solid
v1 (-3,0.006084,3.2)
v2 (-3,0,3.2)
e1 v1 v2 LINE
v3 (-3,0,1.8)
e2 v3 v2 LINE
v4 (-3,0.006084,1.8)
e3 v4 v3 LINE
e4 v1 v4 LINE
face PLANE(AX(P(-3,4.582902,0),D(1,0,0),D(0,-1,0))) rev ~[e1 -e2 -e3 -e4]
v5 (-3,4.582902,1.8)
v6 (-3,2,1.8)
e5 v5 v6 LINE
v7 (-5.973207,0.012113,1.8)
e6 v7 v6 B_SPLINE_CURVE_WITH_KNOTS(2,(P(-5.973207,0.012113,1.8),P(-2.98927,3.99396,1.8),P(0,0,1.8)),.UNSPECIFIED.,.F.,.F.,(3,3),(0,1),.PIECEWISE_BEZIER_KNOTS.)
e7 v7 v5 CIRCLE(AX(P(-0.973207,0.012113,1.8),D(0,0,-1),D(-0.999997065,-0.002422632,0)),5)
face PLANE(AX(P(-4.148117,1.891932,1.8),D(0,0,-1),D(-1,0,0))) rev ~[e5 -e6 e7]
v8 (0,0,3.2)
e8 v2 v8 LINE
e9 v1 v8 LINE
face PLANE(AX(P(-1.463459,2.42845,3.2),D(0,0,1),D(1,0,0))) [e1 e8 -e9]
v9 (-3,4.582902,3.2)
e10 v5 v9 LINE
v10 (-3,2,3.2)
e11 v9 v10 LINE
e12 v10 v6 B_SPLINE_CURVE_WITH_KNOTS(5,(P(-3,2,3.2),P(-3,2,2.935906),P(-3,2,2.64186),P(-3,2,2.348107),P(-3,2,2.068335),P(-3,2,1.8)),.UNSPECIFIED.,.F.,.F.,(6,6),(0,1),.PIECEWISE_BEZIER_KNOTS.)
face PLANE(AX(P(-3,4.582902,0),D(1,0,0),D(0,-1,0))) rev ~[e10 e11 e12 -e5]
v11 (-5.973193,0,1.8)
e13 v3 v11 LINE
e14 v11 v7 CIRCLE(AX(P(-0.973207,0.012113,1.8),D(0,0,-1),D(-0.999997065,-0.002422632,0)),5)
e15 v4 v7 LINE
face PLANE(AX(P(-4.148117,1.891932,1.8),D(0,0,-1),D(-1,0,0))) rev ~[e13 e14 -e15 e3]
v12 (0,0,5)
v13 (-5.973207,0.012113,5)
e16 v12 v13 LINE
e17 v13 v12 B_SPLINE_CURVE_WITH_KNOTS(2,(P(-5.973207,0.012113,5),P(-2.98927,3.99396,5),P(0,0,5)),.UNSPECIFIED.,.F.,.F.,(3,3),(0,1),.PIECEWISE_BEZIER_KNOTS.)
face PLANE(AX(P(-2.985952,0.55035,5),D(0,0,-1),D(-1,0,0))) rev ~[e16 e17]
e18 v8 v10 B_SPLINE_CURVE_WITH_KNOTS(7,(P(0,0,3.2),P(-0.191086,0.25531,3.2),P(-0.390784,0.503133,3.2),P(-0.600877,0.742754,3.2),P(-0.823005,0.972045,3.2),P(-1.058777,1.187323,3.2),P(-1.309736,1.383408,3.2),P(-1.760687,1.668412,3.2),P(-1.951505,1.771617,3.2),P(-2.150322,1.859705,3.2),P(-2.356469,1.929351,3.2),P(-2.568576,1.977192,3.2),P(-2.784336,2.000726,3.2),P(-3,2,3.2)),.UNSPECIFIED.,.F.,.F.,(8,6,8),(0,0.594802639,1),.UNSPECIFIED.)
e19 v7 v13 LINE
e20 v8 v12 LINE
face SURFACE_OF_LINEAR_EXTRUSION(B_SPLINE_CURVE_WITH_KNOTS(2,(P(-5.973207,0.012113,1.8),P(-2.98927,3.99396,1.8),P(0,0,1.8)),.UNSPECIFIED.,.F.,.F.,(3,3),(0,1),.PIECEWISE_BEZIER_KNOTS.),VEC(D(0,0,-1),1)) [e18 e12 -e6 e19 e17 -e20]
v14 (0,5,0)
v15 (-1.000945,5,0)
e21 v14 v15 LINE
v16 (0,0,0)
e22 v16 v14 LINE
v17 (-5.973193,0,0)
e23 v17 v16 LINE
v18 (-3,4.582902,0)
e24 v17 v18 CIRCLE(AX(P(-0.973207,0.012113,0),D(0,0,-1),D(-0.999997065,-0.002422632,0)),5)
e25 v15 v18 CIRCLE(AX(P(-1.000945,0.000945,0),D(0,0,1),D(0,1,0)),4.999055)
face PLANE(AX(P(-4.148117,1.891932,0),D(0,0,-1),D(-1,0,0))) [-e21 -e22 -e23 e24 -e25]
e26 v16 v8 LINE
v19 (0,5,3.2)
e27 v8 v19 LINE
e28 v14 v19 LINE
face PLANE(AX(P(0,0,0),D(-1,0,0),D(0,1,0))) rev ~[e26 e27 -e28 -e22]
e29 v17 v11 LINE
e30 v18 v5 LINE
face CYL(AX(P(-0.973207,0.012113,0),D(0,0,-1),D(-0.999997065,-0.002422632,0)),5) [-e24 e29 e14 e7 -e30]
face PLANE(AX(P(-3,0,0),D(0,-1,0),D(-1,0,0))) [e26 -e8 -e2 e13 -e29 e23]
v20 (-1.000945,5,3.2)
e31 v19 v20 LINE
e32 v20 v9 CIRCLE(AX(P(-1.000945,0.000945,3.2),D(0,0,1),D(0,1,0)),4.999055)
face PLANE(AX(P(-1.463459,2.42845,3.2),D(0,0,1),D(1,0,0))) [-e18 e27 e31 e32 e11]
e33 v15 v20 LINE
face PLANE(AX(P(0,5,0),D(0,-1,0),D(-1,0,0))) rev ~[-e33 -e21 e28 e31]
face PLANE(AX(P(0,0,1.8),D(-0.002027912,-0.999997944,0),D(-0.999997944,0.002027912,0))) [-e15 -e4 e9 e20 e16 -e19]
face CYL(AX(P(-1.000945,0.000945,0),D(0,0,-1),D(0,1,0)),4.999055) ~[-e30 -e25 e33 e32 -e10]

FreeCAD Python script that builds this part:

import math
import FreeCAD as App
import Part
import Sketcher
Q = App.Units.Quantity

doc = App.newDocument("Part")
body = doc.addObject("PartDesign::Body", "Body")

# Sketch on XY plane
sketch1 = body.newObject("Sketcher::SketchObject", "Sketch")
sketch1.AttachmentSupport = (doc.getObject("XY_Plane"), [""])
sketch1.MapMode = "FlatFace"
sketch1.addGeometry([
    Part.LineSegment(App.Vector(-3, 4.6, 0), App.Vector(-3, 0, 0)),  # 0
    Part.LineSegment(App.Vector(-3, 0, 0), App.Vector(0, 0, 0)),  # 1
    Part.LineSegment(App.Vector(0, 0, 0), App.Vector(0, 5, 0)),  # 2
    Part.LineSegment(App.Vector(0, 5, 0), App.Vector(-1, 5, 0)),  # 3
    Part.ArcOfCircle(Part.Circle(App.Vector(-1, 0, 0), App.Vector(0, 0, 1), 5), math.radians(90), math.radians(114)),  # 4
], False)
sketch1.addConstraint([
    Sketcher.Constraint("Coincident", 0, 2, 1, 1),
    Sketcher.Constraint("Coincident", 1, 2, 2, 1),
    Sketcher.Constraint("Coincident", 2, 2, 3, 1),
    Sketcher.Constraint("Tangent", 3, 2, 4, 1),
    Sketcher.Constraint("Coincident", 4, 2, 0, 1),
    Sketcher.Constraint("Vertical", 0),
    Sketcher.Constraint("Horizontal", 1),
    Sketcher.Constraint("Vertical", 2),
    Sketcher.Constraint("Horizontal", 3),
    Sketcher.Constraint("Coincident", 1, 2, -1, 1),
    Sketcher.Constraint("DistanceX", 1, 1, 1, 2, Q("3 mm")),
    Sketcher.Constraint("DistanceY", 2, 1, 2, 2, Q("5 mm")),
    Sketcher.Constraint("Radius", 4, Q("4.999055 mm")),
    Sketcher.Constraint("DistanceX", 3, 2, 3, 1, Q("1.000945 mm")),
])
pad1 = body.newObject("PartDesign::Pad", "Pad")
pad1.Profile = sketch1
pad1.Length = 3.2

# Sketch on XY plane
sketch2 = body.newObject("Sketcher::SketchObject", "Sketch001")
sketch2.AttachmentSupport = (doc.getObject("XY_Plane"), [""])
sketch2.MapMode = "FlatFace"
sketch2.addGeometry([
    Part.LineSegment(App.Vector(-3, 0, 0), App.Vector(-6, 0, 0)),
    Part.ArcOfCircle(Part.Circle(App.Vector(-1, 0, 0), App.Vector(0, 0, 1), 5), math.radians(114), math.radians(180)),
    Part.LineSegment(App.Vector(-3, 4.6, 0), App.Vector(-3, 0, 0)),
], False)
sketch2.addConstraint([
    Sketcher.Constraint("Coincident", 0, 2, 1, 2),
    Sketcher.Constraint("Coincident", 1, 1, 2, 1),
    Sketcher.Constraint("Coincident", 2, 2, 0, 1),
    Sketcher.Constraint("Horizontal", 0),
    Sketcher.Constraint("Vertical", 2),
    Sketcher.Constraint("PointOnObject", 0, 2, -1),
    Sketcher.Constraint("Radius", 1, Q("5 mm")),
    Sketcher.Constraint("DistanceX", 1, 1, -1, 1, Q("3 mm")),
    Sketcher.Constraint("DistanceX", 0, 2, 0, 1, Q("2.973193 mm")),
    Sketcher.Constraint("DistanceY", 2, 2, 2, 1, Q("4.582902 mm")),
])
pad2 = body.newObject("PartDesign::Pad", "Pad001")
pad2.Profile = sketch2
pad2.Length = 1.8

# Sketch on XY plane
sketch3 = body.newObject("Sketcher::SketchObject", "Sketch002")
sketch3.AttachmentSupport = (doc.getObject("XY_Plane"), [""])
sketch3.MapMode = "FlatFace"
sketch3.AttachmentOffset = App.Placement(App.Vector(0, 0, 1.8), App.Rotation())
sketch3.addGeometry([
    Part.LineSegment(App.Vector(-5.973207, 0.012113, 0), App.Vector(0, 0, 0)),
    Part.BSplineCurve([App.Vector(-5.973207, 0.012113, 0), App.Vector(-2.98927, 3.99396, 0), App.Vector(0, 0, 0)], [3, 3], [0, 1], False, 2, [1, 1, 1], False),
], False)
sketch3.addConstraint([
    Sketcher.Constraint("Block", 1),
    Sketcher.Constraint("Coincident", 0, 1, 1, 1),
    Sketcher.Constraint("Coincident", 1, 2, 0, 2),
])
pad3 = body.newObject("PartDesign::Pad", "Pad002")
pad3.Profile = sketch3
pad3.Length = 3.2

doc.recompute()
